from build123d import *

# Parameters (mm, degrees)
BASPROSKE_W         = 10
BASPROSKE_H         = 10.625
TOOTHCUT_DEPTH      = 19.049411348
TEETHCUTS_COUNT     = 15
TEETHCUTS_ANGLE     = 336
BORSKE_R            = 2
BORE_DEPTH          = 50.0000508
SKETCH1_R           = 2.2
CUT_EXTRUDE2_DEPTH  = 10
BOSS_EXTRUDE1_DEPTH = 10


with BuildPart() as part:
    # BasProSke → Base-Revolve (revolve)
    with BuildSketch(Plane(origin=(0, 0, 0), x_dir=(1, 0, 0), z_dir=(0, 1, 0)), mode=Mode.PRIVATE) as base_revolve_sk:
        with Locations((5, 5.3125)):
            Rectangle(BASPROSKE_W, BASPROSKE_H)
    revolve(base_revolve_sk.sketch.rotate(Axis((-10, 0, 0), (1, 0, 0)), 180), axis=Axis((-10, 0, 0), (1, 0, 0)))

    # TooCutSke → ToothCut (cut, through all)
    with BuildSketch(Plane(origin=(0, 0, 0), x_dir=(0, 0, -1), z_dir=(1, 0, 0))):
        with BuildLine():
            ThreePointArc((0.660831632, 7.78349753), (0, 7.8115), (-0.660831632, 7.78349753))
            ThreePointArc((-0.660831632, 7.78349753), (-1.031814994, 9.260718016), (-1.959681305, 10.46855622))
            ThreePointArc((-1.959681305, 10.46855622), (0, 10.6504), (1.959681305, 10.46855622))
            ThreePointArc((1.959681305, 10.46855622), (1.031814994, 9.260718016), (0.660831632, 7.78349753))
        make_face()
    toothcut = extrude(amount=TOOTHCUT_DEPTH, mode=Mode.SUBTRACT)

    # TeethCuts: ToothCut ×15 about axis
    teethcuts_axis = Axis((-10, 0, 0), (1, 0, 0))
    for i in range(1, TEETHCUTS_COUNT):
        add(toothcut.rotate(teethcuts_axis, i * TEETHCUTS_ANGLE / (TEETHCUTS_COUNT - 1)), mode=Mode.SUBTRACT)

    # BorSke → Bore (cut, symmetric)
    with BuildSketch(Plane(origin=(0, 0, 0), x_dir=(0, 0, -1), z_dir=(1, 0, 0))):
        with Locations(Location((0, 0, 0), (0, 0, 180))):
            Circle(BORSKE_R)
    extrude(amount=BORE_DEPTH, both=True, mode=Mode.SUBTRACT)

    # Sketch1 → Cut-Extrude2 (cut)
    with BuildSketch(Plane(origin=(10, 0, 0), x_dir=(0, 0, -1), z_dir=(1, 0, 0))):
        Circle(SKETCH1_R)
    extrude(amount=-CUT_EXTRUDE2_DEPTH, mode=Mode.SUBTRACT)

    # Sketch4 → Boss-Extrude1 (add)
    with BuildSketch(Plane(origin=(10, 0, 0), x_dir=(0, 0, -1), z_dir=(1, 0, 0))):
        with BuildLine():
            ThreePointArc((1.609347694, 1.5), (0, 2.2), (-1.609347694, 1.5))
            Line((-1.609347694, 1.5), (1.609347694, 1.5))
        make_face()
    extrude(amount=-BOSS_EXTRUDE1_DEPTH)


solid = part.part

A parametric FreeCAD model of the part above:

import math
import FreeCAD as App
import Part
import Sketcher

doc = App.newDocument("Part")
body = doc.addObject("PartDesign::Body", "Body")

sketch1 = body.newObject("Sketcher::SketchObject", "Sketch")
sketch1.AttachmentSupport = (doc.getObject("XZ_Plane"), [""])
sketch1.MapMode = "FlatFace"
sketch1.addGeometry(Part.LineSegment(App.Vector(0, -11, 0), App.Vector(0, 0, 0)), False)
sketch1.addGeometry(Part.LineSegment(App.Vector(0, 0, 0), App.Vector(10, 0, 0)), False)
sketch1.addGeometry(Part.LineSegment(App.Vector(10, 0, 0), App.Vector(10, -11, 0)), False)
sketch1.addGeometry(Part.LineSegment(App.Vector(10, -11, 0), App.Vector(0, -11, 0)), False)
sketch1.addConstraint(Sketcher.Constraint("Coincident", 0, 2, 1, 1))
sketch1.addConstraint(Sketcher.Constraint("Coincident", 1, 2, 2, 1))
sketch1.addConstraint(Sketcher.Constraint("Coincident", 2, 2, 3, 1))
sketch1.addConstraint(Sketcher.Constraint("Coincident", 3, 2, 0, 1))
sketch1.addConstraint(Sketcher.Constraint("Vertical", 0))
sketch1.addConstraint(Sketcher.Constraint("Horizontal", 1))
sketch1.addConstraint(Sketcher.Constraint("Vertical", 2))
sketch1.addConstraint(Sketcher.Constraint("Horizontal", 3))
sketch1.addConstraint(Sketcher.Constraint("Coincident", 0, 2, -1, 1))
sketch1.addConstraint(Sketcher.Constraint("DistanceX", 1, 1, 1, 2, 10.0))
sketch1.addConstraint(Sketcher.Constraint("DistanceY", 0, 1, 0, 2, 10.625))
revolution = body.newObject("PartDesign::Revolution", "Revolution")
revolution.Profile = sketch1
revolution.ReferenceAxis = (sketch1, ["H_Axis"])
revolution.Angle = 360

sketch2 = body.newObject("Sketcher::SketchObject", "Sketch001")
sketch2.AttachmentSupport = (doc.getObject("YZ_Plane"), [""])
sketch2.MapMode = "FlatFace"
sketch2.addGeometry(Part.ArcOfCircle(Part.Circle(App.Vector(0, 0, 0), App.Vector(0, 0, 1), 7.8), math.radians(-4.85), math.radians(4.85)), False)
sketch2.addGeometry(Part.ArcOfCircle(Part.Circle(App.Vector(7.6, -4.4, 0), App.Vector(0, 0, 1), 3.7), math.radians(41), math.radians(88)), False)
sketch2.addGeometry(Part.ArcOfCircle(Part.Circle(App.Vector(0, 0, 0), App.Vector(0, 0, 1), 10.7), math.radians(-11), math.radians(11)), False)
sketch2.addGeometry(Part.ArcOfCircle(Part.Circle(App.Vector(7.6, 4.4, 0), App.Vector(0, 0, 1), 3.7), math.radians(-88), math.radians(-41)), False)
sketch2.addConstraint(Sketcher.Constraint("Coincident", 0, 1, 1, 2))
sketch2.addConstraint(Sketcher.Constraint("Coincident", 1, 1, 2, 1))
sketch2.addConstraint(Sketcher.Constraint("Coincident", 2, 2, 3, 2))
sketch2.addConstraint(Sketcher.Constraint("Coincident", 3, 1, 0, 2))
sketch2.addConstraint(Sketcher.Constraint("Coincident", 0, 3, -1, 1))
sketch2.addConstraint(Sketcher.Constraint("Coincident", 2, 3, -1, 1))
sketch2.addConstraint(Sketcher.Constraint("Equal", 1, 3))
sketch2.addConstraint(Sketcher.Constraint("Symmetric", 1, 3, 3, 3, -1))
sketch2.addConstraint(Sketcher.Constraint("Radius", 1, 3.75))
sketch2.addConstraint(Sketcher.Constraint("Radius", 0, 7.8115))
sketch2.addConstraint(Sketcher.Constraint("Radius", 2, 10.6504))
sketch2.addConstraint(Sketcher.Constraint("DistanceY", 0, 1, -1, 1, 0.660832))
sketch2.addConstraint(Sketcher.Constraint("DistanceY", 1, 1, -1, 1, 1.959681))
pocket1 = body.newObject("PartDesign::Pocket", "Pocket")
pocket1.Profile = sketch2
pocket1.Type = "ThroughAll"
pocket1.Reversed = True
doc.recompute()

polarpattern = body.newObject("PartDesign::PolarPattern", "PolarPattern")
polarpattern.Originals = [pocket1]
polarpattern.Axis = (doc.getObject("X_Axis"), [""])
polarpattern.Angle = 360
polarpattern.Occurrences = 15
body.Tip = polarpattern

sketch3 = body.newObject("Sketcher::SketchObject", "Sketch002")
sketch3.AttachmentSupport = (doc.getObject("YZ_Plane"), [""])
sketch3.MapMode = "FlatFace"
sketch3.addGeometry(Part.Circle(App.Vector(0, 0, 0), App.Vector(0, 0, 1), 2), False)
sketch3.addConstraint(Sketcher.Constraint("Coincident", 0, 3, -1, 1))
sketch3.addConstraint(Sketcher.Constraint("Diameter", 0, 4.0))
pocket2 = body.newObject("PartDesign::Pocket", "Pocket001")
pocket2.Profile = sketch3
pocket2.Length = 100.000102
pocket2.Midplane = True

sketch4 = body.newObject("Sketcher::SketchObject", "Sketch003")
sketch4.AttachmentSupport = (doc.getObject("YZ_Plane"), [""])
sketch4.MapMode = "FlatFace"
sketch4.AttachmentOffset = App.Placement(App.Vector(0, 0, 10), App.Rotation())
sketch4.addGeometry(Part.Circle(App.Vector(0, 0, 0), App.Vector(0, 0, 1), 2.2), False)
sketch4.addConstraint(Sketcher.Constraint("Coincident", 0, 3, -1, 1))
sketch4.addConstraint(Sketcher.Constraint("Diameter", 0, 4.4))
pocket3 = body.newObject("PartDesign::Pocket", "Pocket002")
pocket3.Profile = sketch4
pocket3.Length = 10

sketch5 = body.newObject("Sketcher::SketchObject", "Sketch004")
sketch5.AttachmentSupport = (doc.getObject("YZ_Plane"), [""])
sketch5.MapMode = "FlatFace"
sketch5.AttachmentOffset = App.Placement(App.Vector(0, 0, 10), App.Rotation())
sketch5.addGeometry(Part.ArcOfCircle(Part.Circle(App.Vector(0, 0, 0), App.Vector(0, 0, 1), 2.2), math.radians(-47), math.radians(47)), False)
sketch5.addGeometry(Part.LineSegment(App.Vector(1.5, 1.6, 0), App.Vector(1.5, -1.6, 0)), False)
sketch5.addConstraint(Sketcher.Constraint("Coincident", 0, 1, 1, 2))
sketch5.addConstraint(Sketcher.Constraint("Coincident", 1, 1, 0, 2))
sketch5.addConstraint(Sketcher.Constraint("Vertical", 1))
sketch5.addConstraint(Sketcher.Constraint("Coincident", 0, 3, -1, 1))
sketch5.addConstraint(Sketcher.Constraint("Radius", 0, 2.2))
sketch5.addConstraint(Sketcher.Constraint("DistanceX", -1, 1, 0, 1, 1.5))
pad1 = body.newObject("PartDesign::Pad", "Pad")
pad1.Profile = sketch5
pad1.Length = 10
pad1.Reversed = True

doc.recompute()
